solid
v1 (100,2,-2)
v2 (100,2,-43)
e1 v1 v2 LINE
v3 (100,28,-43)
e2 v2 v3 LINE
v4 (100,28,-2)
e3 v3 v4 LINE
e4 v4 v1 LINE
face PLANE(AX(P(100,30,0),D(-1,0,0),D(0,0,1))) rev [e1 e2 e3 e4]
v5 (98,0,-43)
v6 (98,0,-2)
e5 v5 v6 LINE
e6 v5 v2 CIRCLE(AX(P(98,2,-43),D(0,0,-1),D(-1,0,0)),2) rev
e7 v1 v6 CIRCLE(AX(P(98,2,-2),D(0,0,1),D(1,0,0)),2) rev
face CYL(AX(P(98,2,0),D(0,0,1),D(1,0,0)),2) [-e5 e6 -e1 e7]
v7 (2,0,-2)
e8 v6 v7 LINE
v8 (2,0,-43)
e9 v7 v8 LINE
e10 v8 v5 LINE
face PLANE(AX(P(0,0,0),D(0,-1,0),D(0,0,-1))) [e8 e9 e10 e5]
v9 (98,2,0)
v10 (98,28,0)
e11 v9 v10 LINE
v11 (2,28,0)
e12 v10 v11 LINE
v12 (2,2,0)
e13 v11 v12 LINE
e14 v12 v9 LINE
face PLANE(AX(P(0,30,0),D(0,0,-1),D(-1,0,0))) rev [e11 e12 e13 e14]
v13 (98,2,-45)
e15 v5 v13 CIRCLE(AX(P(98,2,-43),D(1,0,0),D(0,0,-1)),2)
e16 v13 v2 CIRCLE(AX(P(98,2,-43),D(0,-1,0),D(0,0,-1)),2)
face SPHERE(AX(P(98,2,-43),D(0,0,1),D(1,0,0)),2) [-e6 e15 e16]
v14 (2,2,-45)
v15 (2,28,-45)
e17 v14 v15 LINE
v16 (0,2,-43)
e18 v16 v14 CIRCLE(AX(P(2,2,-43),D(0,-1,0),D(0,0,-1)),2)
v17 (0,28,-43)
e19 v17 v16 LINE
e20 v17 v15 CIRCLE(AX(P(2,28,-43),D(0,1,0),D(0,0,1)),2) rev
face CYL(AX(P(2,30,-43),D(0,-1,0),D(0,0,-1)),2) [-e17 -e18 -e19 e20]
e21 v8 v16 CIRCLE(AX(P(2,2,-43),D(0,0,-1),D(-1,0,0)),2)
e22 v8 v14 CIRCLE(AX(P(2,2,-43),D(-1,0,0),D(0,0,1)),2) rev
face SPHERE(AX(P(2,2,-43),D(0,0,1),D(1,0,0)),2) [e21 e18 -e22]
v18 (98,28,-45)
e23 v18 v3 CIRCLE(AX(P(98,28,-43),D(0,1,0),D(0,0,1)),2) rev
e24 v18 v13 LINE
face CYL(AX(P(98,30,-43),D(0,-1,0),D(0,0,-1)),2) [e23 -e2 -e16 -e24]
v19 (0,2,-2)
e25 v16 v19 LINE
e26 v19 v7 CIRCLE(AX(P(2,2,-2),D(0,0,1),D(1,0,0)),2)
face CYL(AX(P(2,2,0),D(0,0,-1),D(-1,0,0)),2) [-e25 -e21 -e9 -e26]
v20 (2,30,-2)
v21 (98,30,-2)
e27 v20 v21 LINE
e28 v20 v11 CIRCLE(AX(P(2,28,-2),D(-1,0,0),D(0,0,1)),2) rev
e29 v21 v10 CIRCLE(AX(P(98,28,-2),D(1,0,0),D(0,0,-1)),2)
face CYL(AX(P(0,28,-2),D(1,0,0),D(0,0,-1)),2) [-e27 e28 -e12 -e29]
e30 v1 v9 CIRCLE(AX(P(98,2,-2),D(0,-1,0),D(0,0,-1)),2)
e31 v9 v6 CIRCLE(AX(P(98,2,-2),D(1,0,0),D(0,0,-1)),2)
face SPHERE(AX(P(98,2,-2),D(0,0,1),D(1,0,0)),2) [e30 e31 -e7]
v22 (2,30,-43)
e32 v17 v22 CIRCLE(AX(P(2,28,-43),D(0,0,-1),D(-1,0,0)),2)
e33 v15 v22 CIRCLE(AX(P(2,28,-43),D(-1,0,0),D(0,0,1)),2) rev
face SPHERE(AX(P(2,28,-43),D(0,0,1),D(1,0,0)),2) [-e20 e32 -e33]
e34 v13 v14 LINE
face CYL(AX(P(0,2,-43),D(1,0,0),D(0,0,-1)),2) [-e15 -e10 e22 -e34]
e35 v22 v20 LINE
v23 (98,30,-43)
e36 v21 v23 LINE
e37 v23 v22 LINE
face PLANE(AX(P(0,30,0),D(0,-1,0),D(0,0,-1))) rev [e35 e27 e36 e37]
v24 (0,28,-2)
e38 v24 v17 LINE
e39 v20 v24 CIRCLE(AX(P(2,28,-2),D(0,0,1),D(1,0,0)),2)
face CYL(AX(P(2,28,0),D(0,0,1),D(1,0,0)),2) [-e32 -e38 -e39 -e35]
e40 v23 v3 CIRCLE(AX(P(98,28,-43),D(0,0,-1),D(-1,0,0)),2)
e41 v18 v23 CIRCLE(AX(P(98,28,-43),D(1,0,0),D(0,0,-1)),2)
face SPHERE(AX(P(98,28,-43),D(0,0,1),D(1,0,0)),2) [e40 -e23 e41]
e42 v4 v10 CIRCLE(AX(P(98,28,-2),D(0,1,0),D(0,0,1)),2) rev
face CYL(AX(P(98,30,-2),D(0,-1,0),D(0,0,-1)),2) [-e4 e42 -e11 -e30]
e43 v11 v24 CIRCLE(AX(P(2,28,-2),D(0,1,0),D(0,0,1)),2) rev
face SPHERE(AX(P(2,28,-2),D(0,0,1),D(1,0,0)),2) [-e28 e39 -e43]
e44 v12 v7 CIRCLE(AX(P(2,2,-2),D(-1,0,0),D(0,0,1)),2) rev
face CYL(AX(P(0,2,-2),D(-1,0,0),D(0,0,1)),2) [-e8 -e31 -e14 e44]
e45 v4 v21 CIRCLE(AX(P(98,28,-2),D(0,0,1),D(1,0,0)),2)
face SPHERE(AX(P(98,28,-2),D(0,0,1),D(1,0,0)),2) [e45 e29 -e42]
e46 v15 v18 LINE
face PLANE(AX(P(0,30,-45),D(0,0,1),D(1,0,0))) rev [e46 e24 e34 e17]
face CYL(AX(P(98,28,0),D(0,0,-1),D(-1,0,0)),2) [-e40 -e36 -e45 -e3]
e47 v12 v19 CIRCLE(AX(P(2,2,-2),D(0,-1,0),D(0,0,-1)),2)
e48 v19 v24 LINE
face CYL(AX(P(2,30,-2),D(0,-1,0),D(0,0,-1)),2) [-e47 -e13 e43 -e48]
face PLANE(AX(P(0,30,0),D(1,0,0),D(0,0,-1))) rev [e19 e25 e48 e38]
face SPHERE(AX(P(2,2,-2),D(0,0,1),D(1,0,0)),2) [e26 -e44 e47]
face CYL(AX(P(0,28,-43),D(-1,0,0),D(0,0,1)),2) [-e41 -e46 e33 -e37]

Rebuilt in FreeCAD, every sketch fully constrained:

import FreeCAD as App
import Part
import Sketcher
from FreeCAD import Vector


def add_polygon(sketch, points):
    """Adds a closed chain of lines whose ends are joined by coincident constraints."""
    first, n = sketch.GeometryCount, len(points)
    for a, b in zip(points, points[1:] + points[:1]):
        sketch.addGeometry(Part.LineSegment(App.Vector(*a, 0), App.Vector(*b, 0)), False)
    for i in range(n):
        sketch.addConstraint(Sketcher.Constraint("Coincident", first + i, 2, first + (i + 1) % n, 1))

doc = App.newDocument("Part")
body = doc.addObject("PartDesign::Body", "Body")

sketch1 = body.newObject("Sketcher::SketchObject", "Sketch")
sketch1.AttachmentSupport = (doc.getObject("XZ_Plane"), [""])
sketch1.MapMode = "FlatFace"
add_polygon(sketch1, [(0, -45), (0, 0), (100, 0), (100, -45)])
sketch1.addConstraint(Sketcher.Constraint("Vertical", 0))
sketch1.addConstraint(Sketcher.Constraint("Horizontal", 1))
sketch1.addConstraint(Sketcher.Constraint("Vertical", 2))
sketch1.addConstraint(Sketcher.Constraint("Horizontal", 3))
sketch1.addConstraint(Sketcher.Constraint("Coincident", 0, 2, -1, 1))
sketch1.addConstraint(Sketcher.Constraint("DistanceX", 1, 1, 1, 2, 100.0))
sketch1.addConstraint(Sketcher.Constraint("DistanceY", 0, 1, 0, 2, 45.0))
pad1 = body.newObject("PartDesign::Pad", "Pad")
pad1.Profile = sketch1
pad1.Length = 30
pad1.Reversed = True
doc.recompute()

fillet = body.newObject("PartDesign::Fillet", "Fillet")
fillet.Base = (pad1, ["Edge1"])
fillet.UseAllEdges = True
fillet.Radius = 2

doc.recompute()
